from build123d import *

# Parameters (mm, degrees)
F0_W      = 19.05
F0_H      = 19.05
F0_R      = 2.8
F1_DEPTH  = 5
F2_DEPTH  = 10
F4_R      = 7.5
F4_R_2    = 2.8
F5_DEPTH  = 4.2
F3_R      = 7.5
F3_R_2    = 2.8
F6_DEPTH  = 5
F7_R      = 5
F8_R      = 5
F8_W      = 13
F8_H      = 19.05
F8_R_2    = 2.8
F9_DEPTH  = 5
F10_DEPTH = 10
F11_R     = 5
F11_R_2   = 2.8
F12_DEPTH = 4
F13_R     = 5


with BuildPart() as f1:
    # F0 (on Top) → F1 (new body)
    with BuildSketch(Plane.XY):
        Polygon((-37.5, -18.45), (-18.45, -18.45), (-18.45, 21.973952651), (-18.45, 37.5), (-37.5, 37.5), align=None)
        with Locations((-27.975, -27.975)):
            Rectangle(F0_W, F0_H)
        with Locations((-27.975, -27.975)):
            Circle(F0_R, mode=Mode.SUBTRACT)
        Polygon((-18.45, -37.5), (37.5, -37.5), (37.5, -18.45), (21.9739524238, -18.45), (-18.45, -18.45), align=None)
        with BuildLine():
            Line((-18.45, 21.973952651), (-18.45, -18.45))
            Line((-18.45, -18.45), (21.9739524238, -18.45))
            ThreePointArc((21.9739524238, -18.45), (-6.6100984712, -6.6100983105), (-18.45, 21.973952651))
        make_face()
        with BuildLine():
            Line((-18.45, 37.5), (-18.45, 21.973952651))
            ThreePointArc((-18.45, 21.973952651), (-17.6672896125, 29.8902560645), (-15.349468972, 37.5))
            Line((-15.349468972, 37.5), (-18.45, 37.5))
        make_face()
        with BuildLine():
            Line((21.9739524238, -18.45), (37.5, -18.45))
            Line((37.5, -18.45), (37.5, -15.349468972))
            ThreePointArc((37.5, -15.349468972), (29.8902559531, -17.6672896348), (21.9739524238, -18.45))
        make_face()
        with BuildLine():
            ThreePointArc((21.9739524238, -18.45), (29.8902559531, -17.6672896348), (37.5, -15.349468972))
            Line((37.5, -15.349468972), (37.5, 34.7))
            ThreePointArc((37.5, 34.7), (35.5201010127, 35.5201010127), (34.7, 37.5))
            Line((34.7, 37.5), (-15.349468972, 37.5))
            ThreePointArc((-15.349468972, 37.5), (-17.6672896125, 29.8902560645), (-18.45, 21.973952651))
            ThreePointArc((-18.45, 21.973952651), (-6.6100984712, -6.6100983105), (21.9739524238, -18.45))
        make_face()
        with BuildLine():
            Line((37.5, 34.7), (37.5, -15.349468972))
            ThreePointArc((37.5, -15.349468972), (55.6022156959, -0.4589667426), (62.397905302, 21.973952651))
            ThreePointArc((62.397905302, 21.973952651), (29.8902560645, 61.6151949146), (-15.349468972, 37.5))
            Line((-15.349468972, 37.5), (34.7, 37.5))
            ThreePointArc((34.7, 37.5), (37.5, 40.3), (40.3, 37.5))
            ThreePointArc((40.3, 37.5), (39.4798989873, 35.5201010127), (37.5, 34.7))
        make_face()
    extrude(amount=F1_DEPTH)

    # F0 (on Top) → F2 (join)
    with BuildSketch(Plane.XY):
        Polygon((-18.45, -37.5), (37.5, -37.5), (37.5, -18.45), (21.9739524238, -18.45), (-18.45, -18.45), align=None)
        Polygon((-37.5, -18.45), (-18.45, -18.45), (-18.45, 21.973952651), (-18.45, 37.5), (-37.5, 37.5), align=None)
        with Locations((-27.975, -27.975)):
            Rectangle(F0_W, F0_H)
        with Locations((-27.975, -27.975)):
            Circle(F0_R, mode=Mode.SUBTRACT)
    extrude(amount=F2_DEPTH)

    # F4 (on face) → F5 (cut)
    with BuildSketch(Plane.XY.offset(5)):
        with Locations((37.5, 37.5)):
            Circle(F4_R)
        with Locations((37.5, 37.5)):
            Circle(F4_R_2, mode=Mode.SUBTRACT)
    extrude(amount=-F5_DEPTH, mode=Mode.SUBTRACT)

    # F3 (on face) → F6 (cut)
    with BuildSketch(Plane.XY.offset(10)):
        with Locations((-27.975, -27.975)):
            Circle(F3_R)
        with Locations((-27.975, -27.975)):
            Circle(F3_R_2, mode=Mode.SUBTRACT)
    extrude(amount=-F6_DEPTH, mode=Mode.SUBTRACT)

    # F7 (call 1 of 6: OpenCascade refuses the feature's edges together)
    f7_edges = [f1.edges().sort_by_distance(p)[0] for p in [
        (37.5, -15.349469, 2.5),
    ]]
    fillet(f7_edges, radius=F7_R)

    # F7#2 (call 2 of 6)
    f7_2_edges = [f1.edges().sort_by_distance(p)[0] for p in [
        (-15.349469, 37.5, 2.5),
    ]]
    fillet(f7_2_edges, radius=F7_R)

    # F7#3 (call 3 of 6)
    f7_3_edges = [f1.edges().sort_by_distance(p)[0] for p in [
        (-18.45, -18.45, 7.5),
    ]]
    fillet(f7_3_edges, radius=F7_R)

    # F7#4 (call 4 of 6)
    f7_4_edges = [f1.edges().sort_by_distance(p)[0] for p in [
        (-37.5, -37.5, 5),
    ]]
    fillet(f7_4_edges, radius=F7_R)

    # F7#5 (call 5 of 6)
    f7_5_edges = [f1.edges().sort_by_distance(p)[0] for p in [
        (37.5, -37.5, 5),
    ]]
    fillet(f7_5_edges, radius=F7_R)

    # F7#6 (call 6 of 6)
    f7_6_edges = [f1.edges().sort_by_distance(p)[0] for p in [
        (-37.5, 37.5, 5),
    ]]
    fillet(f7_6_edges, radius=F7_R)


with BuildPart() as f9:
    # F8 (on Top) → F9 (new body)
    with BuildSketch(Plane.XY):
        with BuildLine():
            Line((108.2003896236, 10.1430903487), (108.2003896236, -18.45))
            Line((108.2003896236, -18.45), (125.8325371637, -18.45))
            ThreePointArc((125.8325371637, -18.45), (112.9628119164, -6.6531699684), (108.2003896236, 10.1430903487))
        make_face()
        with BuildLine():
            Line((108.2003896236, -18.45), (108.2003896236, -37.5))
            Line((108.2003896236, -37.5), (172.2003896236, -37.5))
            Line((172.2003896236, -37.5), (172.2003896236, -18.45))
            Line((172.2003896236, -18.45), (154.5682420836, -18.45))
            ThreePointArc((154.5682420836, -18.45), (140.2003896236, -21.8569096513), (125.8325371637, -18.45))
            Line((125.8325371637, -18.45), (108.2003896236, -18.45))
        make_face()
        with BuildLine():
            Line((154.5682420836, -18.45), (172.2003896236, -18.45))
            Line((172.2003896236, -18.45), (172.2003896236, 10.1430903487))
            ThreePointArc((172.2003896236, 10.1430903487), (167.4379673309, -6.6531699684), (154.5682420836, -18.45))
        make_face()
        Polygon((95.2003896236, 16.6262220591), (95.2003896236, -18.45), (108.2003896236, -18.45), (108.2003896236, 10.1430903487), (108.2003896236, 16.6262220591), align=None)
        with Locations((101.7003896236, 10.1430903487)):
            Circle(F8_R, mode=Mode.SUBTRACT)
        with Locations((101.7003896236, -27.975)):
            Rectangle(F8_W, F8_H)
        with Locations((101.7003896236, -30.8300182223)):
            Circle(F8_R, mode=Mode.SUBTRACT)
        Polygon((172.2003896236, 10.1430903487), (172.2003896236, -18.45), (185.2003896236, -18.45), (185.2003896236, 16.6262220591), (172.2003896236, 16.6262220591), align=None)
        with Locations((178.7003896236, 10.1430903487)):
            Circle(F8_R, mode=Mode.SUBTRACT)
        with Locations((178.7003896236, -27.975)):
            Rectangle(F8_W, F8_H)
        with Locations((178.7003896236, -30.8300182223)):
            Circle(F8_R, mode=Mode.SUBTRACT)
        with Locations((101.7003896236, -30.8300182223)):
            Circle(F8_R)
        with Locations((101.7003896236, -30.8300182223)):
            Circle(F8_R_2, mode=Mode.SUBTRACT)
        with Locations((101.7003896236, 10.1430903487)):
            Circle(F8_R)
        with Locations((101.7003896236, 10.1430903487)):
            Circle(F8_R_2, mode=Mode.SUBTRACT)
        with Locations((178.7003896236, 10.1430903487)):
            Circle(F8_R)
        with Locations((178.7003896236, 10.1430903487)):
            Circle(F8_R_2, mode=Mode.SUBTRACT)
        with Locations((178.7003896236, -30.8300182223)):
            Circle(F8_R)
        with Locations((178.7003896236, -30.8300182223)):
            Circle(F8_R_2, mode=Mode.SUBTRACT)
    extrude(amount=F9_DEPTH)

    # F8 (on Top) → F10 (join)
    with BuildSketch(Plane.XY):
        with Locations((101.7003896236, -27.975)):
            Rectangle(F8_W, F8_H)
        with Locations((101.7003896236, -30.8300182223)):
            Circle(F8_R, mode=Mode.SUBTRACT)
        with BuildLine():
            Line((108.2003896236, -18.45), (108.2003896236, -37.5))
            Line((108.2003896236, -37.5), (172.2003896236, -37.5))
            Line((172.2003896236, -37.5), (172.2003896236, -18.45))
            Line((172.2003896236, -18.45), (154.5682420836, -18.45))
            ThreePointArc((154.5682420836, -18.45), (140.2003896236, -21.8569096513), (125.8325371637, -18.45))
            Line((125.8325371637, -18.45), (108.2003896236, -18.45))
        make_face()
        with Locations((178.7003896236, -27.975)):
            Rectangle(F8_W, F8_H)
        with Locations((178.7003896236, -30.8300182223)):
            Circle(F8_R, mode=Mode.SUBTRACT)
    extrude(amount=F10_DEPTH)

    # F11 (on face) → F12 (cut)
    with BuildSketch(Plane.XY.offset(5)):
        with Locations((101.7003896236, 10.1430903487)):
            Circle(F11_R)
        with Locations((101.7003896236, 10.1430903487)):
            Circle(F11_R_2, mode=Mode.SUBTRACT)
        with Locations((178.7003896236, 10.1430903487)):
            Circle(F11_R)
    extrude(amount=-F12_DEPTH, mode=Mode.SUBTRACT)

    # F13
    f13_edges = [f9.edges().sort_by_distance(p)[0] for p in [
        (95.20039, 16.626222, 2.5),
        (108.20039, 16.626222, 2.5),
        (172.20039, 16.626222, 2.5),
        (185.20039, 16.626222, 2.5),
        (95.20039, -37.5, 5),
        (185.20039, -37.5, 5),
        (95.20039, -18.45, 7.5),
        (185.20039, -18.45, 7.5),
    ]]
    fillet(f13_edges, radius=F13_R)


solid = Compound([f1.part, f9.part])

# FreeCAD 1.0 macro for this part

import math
import FreeCAD as App
import Part
import Sketcher


def edges_at(feature, points):
    """Names of the edges that pass closest to the given points."""
    edges = feature.Shape.Edges
    near = lambda p: min(range(len(edges)), key=lambda i: edges[i].distToShape(Part.Vertex(*p))[0])
    return sorted({f"Edge{near(p) + 1}" for p in points})


def add_polygon(sketch, points):
    """Adds a closed chain of lines whose ends are joined by coincident constraints."""
    first, n = sketch.GeometryCount, len(points)
    for a, b in zip(points, points[1:] + points[:1]):
        sketch.addGeometry(Part.LineSegment(App.Vector(*a, 0), App.Vector(*b, 0)), False)
    for i in range(n):
        sketch.addConstraint(Sketcher.Constraint("Coincident", first + i, 2, first + (i + 1) % n, 1))

doc = App.newDocument("Part")
body = doc.addObject("PartDesign::Body", "Body")

# Sketch on XY plane
sketch1 = body.newObject("Sketcher::SketchObject", "Sketch")
sketch1.AttachmentSupport = (doc.getObject("XY_Plane"), [""])
sketch1.MapMode = "FlatFace"
sketch1.addGeometry(Part.LineSegment(App.Vector(-37.5, 37.5, 0), App.Vector(-37.5, -37.5, 0)), False)
sketch1.addGeometry(Part.LineSegment(App.Vector(-37.5, -37.5, 0), App.Vector(37.5, -37.5, 0)), False)
sketch1.addGeometry(Part.LineSegment(App.Vector(37.5, -37.5, 0), App.Vector(37.5, -15.349469, 0)), False)
sketch1.addGeometry(Part.ArcOfCircle(Part.Circle(App.Vector(21.973953, 21.973953, 0), App.Vector(0, 0, 1), 40.423953), math.radians(-67.413339), math.radians(0)), False)
sketch1.addGeometry(Part.ArcOfCircle(Part.Circle(App.Vector(21.973953, 21.973953, 0), App.Vector(0, 0, 1), 40.423953), math.radians(0), math.radians(157.413339)), False)
sketch1.addGeometry(Part.LineSegment(App.Vector(-15.349469, 37.5, 0), App.Vector(-37.5, 37.5, 0)), False)
sketch1.addGeometry(Part.ArcOfCircle(Part.Circle(App.Vector(37.5, 37.5, 0), App.Vector(0, 0, 1), 2.8), math.radians(180), math.radians(270)), False)
sketch1.addGeometry(Part.ArcOfCircle(Part.Circle(App.Vector(37.5, 37.5, 0), App.Vector(0, 0, 1), 2.8), math.radians(0), math.radians(180)), False)
sketch1.addGeometry(Part.ArcOfCircle(Part.Circle(App.Vector(37.5, 37.5, 0), App.Vector(0, 0, 1), 2.8), math.radians(-90), math.radians(0)), False)
sketch1.addGeometry(Part.Circle(App.Vector(-27.975, -27.975, 0), App.Vector(0, 0, 1), 2.8), False)
sketch1.addConstraint(Sketcher.Constraint("Coincident", 0, 2, 1, 1))
sketch1.addConstraint(Sketcher.Constraint("Coincident", 1, 2, 2, 1))
sketch1.addConstraint(Sketcher.Constraint("Coincident", 2, 2, 3, 1))
sketch1.addConstraint(Sketcher.Constraint("Tangent", 3, 2, 4, 1))
sketch1.addConstraint(Sketcher.Constraint("Coincident", 4, 2, 5, 1))
sketch1.addConstraint(Sketcher.Constraint("Coincident", 5, 2, 0, 1))
sketch1.addConstraint(Sketcher.Constraint("Tangent", 6, 1, 7, 2))
sketch1.addConstraint(Sketcher.Constraint("Tangent", 7, 1, 8, 2))
sketch1.addConstraint(Sketcher.Constraint("Tangent", 8, 1, 6, 2))
sketch1.addConstraint(Sketcher.Constraint("Vertical", 0))
sketch1.addConstraint(Sketcher.Constraint("Horizontal", 1))
sketch1.addConstraint(Sketcher.Constraint("Vertical", 2))
sketch1.addConstraint(Sketcher.Constraint("Horizontal", 5))
sketch1.addConstraint(Sketcher.Constraint("Equal", 3, 4))
sketch1.addConstraint(Sketcher.Constraint("Equal", 8, 9))
sketch1.addConstraint(Sketcher.Constraint("Symmetric", 1, 2, 5, 2, -1, 1))
sketch1.addConstraint(Sketcher.Constraint("Horizontal", 4, 3, 3, 2))
sketch1.addConstraint(Sketcher.Constraint("Horizontal", 8, 3, 4, 2))
sketch1.addConstraint(Sketcher.Constraint("Horizontal", 5, 2, 6, 1))
sketch1.addConstraint(Sketcher.Constraint("Horizontal", 6, 1, 7, 1))
sketch1.addConstraint(Sketcher.Constraint("Vertical", 8, 3, 1, 2))
sketch1.addConstraint(Sketcher.Constraint("Vertical", 2, 2, 8, 1))
sketch1.addConstraint(Sketcher.Constraint("Equal", 1, 0))
sketch1.addConstraint(Sketcher.Constraint("Equal", 5, 2))
sketch1.addConstraint(Sketcher.Constraint("Diameter", 9, 5.6))
sketch1.addConstraint(Sketcher.Constraint("DistanceX", 1, 1, 1, 2, 75.0))
sketch1.addConstraint(Sketcher.Constraint("DistanceX", 9, 3, -1, 1, 27.975))
sketch1.addConstraint(Sketcher.Constraint("DistanceY", 9, 3, -1, 1, 27.975))
sketch1.addConstraint(Sketcher.Constraint("Radius", 3, 40.423953))
sketch1.addConstraint(Sketcher.Constraint("DistanceX", 5, 2, 5, 1, 22.150531))
pad1 = body.newObject("PartDesign::Pad", "Pad")
pad1.Profile = sketch1
pad1.Length = 5

# Sketch on XY plane
sketch2 = body.newObject("Sketcher::SketchObject", "Sketch001")
sketch2.AttachmentSupport = (doc.getObject("XY_Plane"), [""])
sketch2.MapMode = "FlatFace"
add_polygon(sketch2, [(37.5, -37.5), (37.5, -18.45), (-18.45, -18.45), (-18.45, 37.5), (-37.5, 37.5), (-37.5, -37.5)])  # lines 0-5
sketch2.addGeometry(Part.Circle(App.Vector(-27.975, -27.975, 0), App.Vector(0, 0, 1), 2.8), False)  # 6
sketch2.addConstraint(Sketcher.Constraint("Vertical", 0))
sketch2.addConstraint(Sketcher.Constraint("Horizontal", 1))
sketch2.addConstraint(Sketcher.Constraint("Vertical", 2))
sketch2.addConstraint(Sketcher.Constraint("Horizontal", 3))
sketch2.addConstraint(Sketcher.Constraint("Vertical", 4))
sketch2.addConstraint(Sketcher.Constraint("Horizontal", 5))
sketch2.addConstraint(Sketcher.Constraint("Symmetric", 3, 2, 5, 2, -1, 1))
sketch2.addConstraint(Sketcher.Constraint("Equal", 3, 0))
sketch2.addConstraint(Sketcher.Constraint("Equal", 1, 2))
sketch2.addConstraint(Sketcher.Constraint("Diameter", 6, 5.6))
sketch2.addConstraint(Sketcher.Constraint("DistanceX", 5, 1, 5, 2, 75.0))
sketch2.addConstraint(Sketcher.Constraint("DistanceX", 1, 2, 1, 1, 55.95))
sketch2.addConstraint(Sketcher.Constraint("DistanceX", 6, 3, -1, 1, 27.975))
sketch2.addConstraint(Sketcher.Constraint("DistanceY", 6, 3, -1, 1, 27.975))
pad2 = body.newObject("PartDesign::Pad", "Pad001")
pad2.Profile = sketch2
pad2.Length = 10

# Sketch on XY plane
sketch3 = body.newObject("Sketcher::SketchObject", "Sketch002")
sketch3.AttachmentSupport = (doc.getObject("XY_Plane"), [""])
sketch3.MapMode = "FlatFace"
sketch3.AttachmentOffset = App.Placement(App.Vector(0, 0, 5), App.Rotation())
sketch3.addGeometry(Part.Circle(App.Vector(37.5, 37.5, 0), App.Vector(0, 0, 1), 7.5), False)
sketch3.addGeometry(Part.Circle(App.Vector(37.5, 37.5, 0), App.Vector(0, 0, 1), 2.8), False)
sketch3.addConstraint(Sketcher.Constraint("Coincident", 1, 3, 0, 3))
sketch3.addConstraint(Sketcher.Constraint("Diameter", 0, 15.0))
sketch3.addConstraint(Sketcher.Constraint("Diameter", 1, 5.6))
sketch3.addConstraint(Sketcher.Constraint("DistanceX", -1, 1, 0, 3, 37.5))
sketch3.addConstraint(Sketcher.Constraint("DistanceY", -1, 1, 0, 3, 37.5))
pocket1 = body.newObject("PartDesign::Pocket", "Pocket")
pocket1.Profile = sketch3
pocket1.Length = 4.2

# Sketch on XY plane
sketch4 = body.newObject("Sketcher::SketchObject", "Sketch003")
sketch4.AttachmentSupport = (doc.getObject("XY_Plane"), [""])
sketch4.MapMode = "FlatFace"
sketch4.AttachmentOffset = App.Placement(App.Vector(0, 0, 10), App.Rotation())
sketch4.addGeometry(Part.Circle(App.Vector(-27.975, -27.975, 0), App.Vector(0, 0, 1), 7.5), False)
sketch4.addGeometry(Part.Circle(App.Vector(-27.975, -27.975, 0), App.Vector(0, 0, 1), 2.8), False)
sketch4.addConstraint(Sketcher.Constraint("Coincident", 1, 3, 0, 3))
sketch4.addConstraint(Sketcher.Constraint("Diameter", 0, 15.0))
sketch4.addConstraint(Sketcher.Constraint("Diameter", 1, 5.6))
sketch4.addConstraint(Sketcher.Constraint("DistanceX", 0, 3, -1, 1, 27.975))
sketch4.addConstraint(Sketcher.Constraint("DistanceY", 0, 3, -1, 1, 27.975))
pocket2 = body.newObject("PartDesign::Pocket", "Pocket001")
pocket2.Profile = sketch4
pocket2.Length = 5
doc.recompute()

fillet = body.newObject("PartDesign::Fillet", "Fillet")
fillet.Base = (pocket2, edges_at(pocket2, [(37.5, -15.349, 2.5)]))
fillet.Radius = 5
doc.recompute()

fillet2 = body.newObject("PartDesign::Fillet", "Fillet001")
fillet2.Base = (fillet, edges_at(fillet, [(-15.349, 37.5, 2.5)]))
fillet2.Radius = 5
doc.recompute()

fillet3 = body.newObject("PartDesign::Fillet", "Fillet002")
fillet3.Base = (fillet2, edges_at(fillet2, [(-18.45, -18.45, 7.5)]))
fillet3.Radius = 5
doc.recompute()

fillet4 = body.newObject("PartDesign::Fillet", "Fillet003")
fillet4.Base = (fillet3, edges_at(fillet3, [(-37.5, -37.5, 5)]))
fillet4.Radius = 5
doc.recompute()

fillet5 = body.newObject("PartDesign::Fillet", "Fillet004")
fillet5.Base = (fillet4, edges_at(fillet4, [(37.5, -37.5, 5)]))
fillet5.Radius = 5
doc.recompute()

fillet6 = body.newObject("PartDesign::Fillet", "Fillet005")
fillet6.Base = (fillet5, edges_at(fillet5, [(-37.5, 37.5, 5)]))
fillet6.Radius = 5
body2 = doc.addObject("PartDesign::Body", "Body001")

# Sketch on XY plane
sketch5 = body2.newObject("Sketcher::SketchObject", "Sketch004")
sketch5.AttachmentSupport = (doc.getObject("XY_Plane001"), [""])
sketch5.MapMode = "FlatFace"
sketch5.addGeometry(Part.LineSegment(App.Vector(95.20039, -37.5, 0), App.Vector(185.20039, -37.5, 0)), False)
sketch5.addGeometry(Part.LineSegment(App.Vector(185.20039, -37.5, 0), App.Vector(185.20039, 16.626222, 0)), False)
sketch5.addGeometry(Part.LineSegment(App.Vector(185.20039, 16.626222, 0), App.Vector(172.20039, 16.626222, 0)), False)
sketch5.addGeometry(Part.LineSegment(App.Vector(172.20039, 16.626222, 0), App.Vector(172.20039, 10.14309, 0)), False)
sketch5.addGeometry(Part.ArcOfCircle(Part.Circle(App.Vector(140.20039, 10.14309, 0), App.Vector(0, 0, 1), 32), math.radians(-116.679247), math.radians(0)), False)
sketch5.addGeometry(Part.ArcOfCircle(Part.Circle(App.Vector(140.20039, 10.14309, 0), App.Vector(0, 0, 1), 32), math.radians(180), math.radians(243.320753)), False)
sketch5.addGeometry(Part.LineSegment(App.Vector(108.20039, 10.14309, 0), App.Vector(108.20039, 16.626222, 0)), False)
sketch5.addGeometry(Part.LineSegment(App.Vector(108.20039, 16.626222, 0), App.Vector(95.20039, 16.626222, 0)), False)
sketch5.addGeometry(Part.LineSegment(App.Vector(95.20039, 16.626222, 0), App.Vector(95.20039, -37.5, 0)), False)
sketch5.addGeometry(Part.Circle(App.Vector(101.70039, -30.830018, 0), App.Vector(0, 0, 1), 2.8), False)
sketch5.addGeometry(Part.Circle(App.Vector(178.70039, -30.830018, 0), App.Vector(0, 0, 1), 2.8), False)
sketch5.addGeometry(Part.Circle(App.Vector(101.70039, 10.14309, 0), App.Vector(0, 0, 1), 2.8), False)
sketch5.addGeometry(Part.Circle(App.Vector(178.70039, 10.14309, 0), App.Vector(0, 0, 1), 2.8), False)
sketch5.addConstraint(Sketcher.Constraint("Coincident", 0, 2, 1, 1))
sketch5.addConstraint(Sketcher.Constraint("Coincident", 1, 2, 2, 1))
sketch5.addConstraint(Sketcher.Constraint("Coincident", 2, 2, 3, 1))
sketch5.addConstraint(Sketcher.Constraint("Tangent", 3, 2, 4, 2))
sketch5.addConstraint(Sketcher.Constraint("Tangent", 4, 1, 5, 2))
sketch5.addConstraint(Sketcher.Constraint("Tangent", 5, 1, 6, 1))
sketch5.addConstraint(Sketcher.Constraint("Coincident", 6, 2, 7, 1))
sketch5.addConstraint(Sketcher.Constraint("Coincident", 7, 2, 8, 1))
sketch5.addConstraint(Sketcher.Constraint("Coincident", 8, 2, 0, 1))
sketch5.addConstraint(Sketcher.Constraint("Horizontal", 0))
sketch5.addConstraint(Sketcher.Constraint("Vertical", 1))
sketch5.addConstraint(Sketcher.Constraint("Horizontal", 2))
sketch5.addConstraint(Sketcher.Constraint("Vertical", 3))
sketch5.addConstraint(Sketcher.Constraint("Vertical", 6))
sketch5.addConstraint(Sketcher.Constraint("Horizontal", 7))
sketch5.addConstraint(Sketcher.Constraint("Vertical", 8))
sketch5.addConstraint(Sketcher.Constraint("Equal", 4, 5))
sketch5.addConstraint(Sketcher.Constraint("Equal", 9, 10))
sketch5.addConstraint(Sketcher.Constraint("Equal", 10, 11))
sketch5.addConstraint(Sketcher.Constraint("Equal", 11, 12))
sketch5.addConstraint(Sketcher.Constraint("Horizontal", 9, 3, 10, 3))
sketch5.addConstraint(Sketcher.Constraint("Horizontal", 5, 3, 11, 3))
sketch5.addConstraint(Sketcher.Constraint("Horizontal", 11, 3, 12, 3))
sketch5.addConstraint(Sketcher.Constraint("Horizontal", 2, 2, 6, 2))
sketch5.addConstraint(Sketcher.Constraint("Vertical", 9, 3, 11, 3))
sketch5.addConstraint(Sketcher.Constraint("Vertical", 10, 3, 12, 3))
sketch5.addConstraint(Sketcher.Constraint("Equal", 2, 7))
sketch5.addConstraint(Sketcher.Constraint("Radius", 4, 32.0))
sketch5.addConstraint(Sketcher.Constraint("Diameter", 9, 5.6))
sketch5.addConstraint(Sketcher.Constraint("DistanceX", 0, 1, 0, 2, 90.0))
sketch5.addConstraint(Sketcher.Constraint("DistanceX", 9, 3, 10, 3, 77.0))
sketch5.addConstraint(Sketcher.Constraint("DistanceY", 0, 2, -1, 1, 37.5))
sketch5.addConstraint(Sketcher.Constraint("DistanceX", 9, 3, 4, 3, 38.5))
sketch5.addConstraint(Sketcher.Constraint("DistanceY", 4, 1, -1, 1, 18.45))
sketch5.addConstraint(Sketcher.Constraint("DistanceY", 3, 2, 3, 1, 6.483132))
sketch5.addConstraint(Sketcher.Constraint("DistanceY", 1, 1, 1, 2, 54.126222))
sketch5.addConstraint(Sketcher.Constraint("DistanceX", -1, 1, 4, 3, 140.20039))
sketch5.addConstraint(Sketcher.Constraint("DistanceY", 9, 3, -1, 1, 30.830018))
pad3 = body2.newObject("PartDesign::Pad", "Pad002")
pad3.Profile = sketch5
pad3.Length = 5

# Sketch on XY plane
sketch6 = body2.newObject("Sketcher::SketchObject", "Sketch005")
sketch6.AttachmentSupport = (doc.getObject("XY_Plane001"), [""])
sketch6.MapMode = "FlatFace"
sketch6.addGeometry(Part.LineSegment(App.Vector(95.20039, -18.45, 0), App.Vector(95.20039, -37.5, 0)), False)
sketch6.addGeometry(Part.LineSegment(App.Vector(95.20039, -37.5, 0), App.Vector(185.20039, -37.5, 0)), False)
sketch6.addGeometry(Part.LineSegment(App.Vector(185.20039, -37.5, 0), App.Vector(185.20039, -18.45, 0)), False)
sketch6.addGeometry(Part.LineSegment(App.Vector(185.20039, -18.45, 0), App.Vector(154.568242, -18.45, 0)), False)
sketch6.addGeometry(Part.ArcOfCircle(Part.Circle(App.Vector(140.20039, 10.14309, 0), App.Vector(0, 0, 1), 32), math.radians(-116.679247), math.radians(-63.320753)), False)
sketch6.addGeometry(Part.LineSegment(App.Vector(125.832537, -18.45, 0), App.Vector(95.20039, -18.45, 0)), False)
sketch6.addGeometry(Part.Circle(App.Vector(101.70039, -30.830018, 0), App.Vector(0, 0, 1), 5), False)
sketch6.addGeometry(Part.Circle(App.Vector(178.70039, -30.830018, 0), App.Vector(0, 0, 1), 5), False)
sketch6.addConstraint(Sketcher.Constraint("Coincident", 0, 2, 1, 1))
sketch6.addConstraint(Sketcher.Constraint("Coincident", 1, 2, 2, 1))
sketch6.addConstraint(Sketcher.Constraint("Coincident", 2, 2, 3, 1))
sketch6.addConstraint(Sketcher.Constraint("Coincident", 3, 2, 4, 2))
sketch6.addConstraint(Sketcher.Constraint("Coincident", 4, 1, 5, 1))
sketch6.addConstraint(Sketcher.Constraint("Coincident", 5, 2, 0, 1))
sketch6.addConstraint(Sketcher.Constraint("Vertical", 0))
sketch6.addConstraint(Sketcher.Constraint("Horizontal", 1))
sketch6.addConstraint(Sketcher.Constraint("Vertical", 2))
sketch6.addConstraint(Sketcher.Constraint("Horizontal", 3))
sketch6.addConstraint(Sketcher.Constraint("Horizontal", 5))
sketch6.addConstraint(Sketcher.Constraint("Equal", 6, 7))
sketch6.addConstraint(Sketcher.Constraint("Horizontal", 6, 3, 7, 3))
sketch6.addConstraint(Sketcher.Constraint("Horizontal", 3, 2, 4, 1))
sketch6.addConstraint(Sketcher.Constraint("Equal", 3, 5))
sketch6.addConstraint(Sketcher.Constraint("Diameter", 6, 10.0))
sketch6.addConstraint(Sketcher.Constraint("Radius", 4, 32.0))
sketch6.addConstraint(Sketcher.Constraint("DistanceX", 1, 1, 1, 2, 90.0))
sketch6.addConstraint(Sketcher.Constraint("DistanceX", 6, 3, 7, 3, 77.0))
sketch6.addConstraint(Sketcher.Constraint("DistanceY", 0, 2, 0, 1, 19.05))
sketch6.addConstraint(Sketcher.Constraint("DistanceY", 0, 2, -1, 1, 37.5))
sketch6.addConstraint(Sketcher.Constraint("DistanceX", 6, 3, 4, 3, 38.5))
sketch6.addConstraint(Sketcher.Constraint("DistanceX", 3, 2, 3, 1, 30.632148))
sketch6.addConstraint(Sketcher.Constraint("DistanceX", -1, 1, 4, 3, 140.20039))
sketch6.addConstraint(Sketcher.Constraint("DistanceY", 6, 3, -1, 1, 30.830018))
pad4 = body2.newObject("PartDesign::Pad", "Pad003")
pad4.Profile = sketch6
pad4.Length = 10

# Sketch on XY plane
sketch7 = body2.newObject("Sketcher::SketchObject", "Sketch006")
sketch7.AttachmentSupport = (doc.getObject("XY_Plane001"), [""])
sketch7.MapMode = "FlatFace"
sketch7.AttachmentOffset = App.Placement(App.Vector(0, 0, 5), App.Rotation())
sketch7.addGeometry(Part.Circle(App.Vector(101.70039, 10.14309, 0), App.Vector(0, 0, 1), 5), False)
sketch7.addGeometry(Part.Circle(App.Vector(101.70039, 10.14309, 0), App.Vector(0, 0, 1), 2.8), False)
sketch7.addGeometry(Part.Circle(App.Vector(178.70039, 10.14309, 0), App.Vector(0, 0, 1), 5), False)
sketch7.addConstraint(Sketcher.Constraint("Coincident", 1, 3, 0, 3))
sketch7.addConstraint(Sketcher.Constraint("Equal", 0, 2))
sketch7.addConstraint(Sketcher.Constraint("Horizontal", 1, 3, 2, 3))
sketch7.addConstraint(Sketcher.Constraint("Diameter", 0, 10.0))
sketch7.addConstraint(Sketcher.Constraint("Diameter", 1, 5.6))
sketch7.addConstraint(Sketcher.Constraint("DistanceX", 0, 3, 2, 3, 77.0))
sketch7.addConstraint(Sketcher.Constraint("DistanceX", -1, 1, 0, 3, 101.70039))
sketch7.addConstraint(Sketcher.Constraint("DistanceY", -1, 1, 0, 3, 10.14309))
pocket3 = body2.newObject("PartDesign::Pocket", "Pocket002")
pocket3.Profile = sketch7
pocket3.Length = 4
doc.recompute()

fillet7 = body2.newObject("PartDesign::Fillet", "Fillet006")
fillet7.Base = (pocket3, edges_at(pocket3, [
    (95.2, 16.626, 2.5),
    (108.2, 16.626, 2.5),
    (172.2, 16.626, 2.5),
    (185.2, 16.626, 2.5),
    (95.2, -37.5, 5),
    (185.2, -37.5, 5),
    (95.2, -18.45, 7.5),
    (185.2, -18.45, 7.5),
]))
fillet7.Radius = 5

doc.recompute()
